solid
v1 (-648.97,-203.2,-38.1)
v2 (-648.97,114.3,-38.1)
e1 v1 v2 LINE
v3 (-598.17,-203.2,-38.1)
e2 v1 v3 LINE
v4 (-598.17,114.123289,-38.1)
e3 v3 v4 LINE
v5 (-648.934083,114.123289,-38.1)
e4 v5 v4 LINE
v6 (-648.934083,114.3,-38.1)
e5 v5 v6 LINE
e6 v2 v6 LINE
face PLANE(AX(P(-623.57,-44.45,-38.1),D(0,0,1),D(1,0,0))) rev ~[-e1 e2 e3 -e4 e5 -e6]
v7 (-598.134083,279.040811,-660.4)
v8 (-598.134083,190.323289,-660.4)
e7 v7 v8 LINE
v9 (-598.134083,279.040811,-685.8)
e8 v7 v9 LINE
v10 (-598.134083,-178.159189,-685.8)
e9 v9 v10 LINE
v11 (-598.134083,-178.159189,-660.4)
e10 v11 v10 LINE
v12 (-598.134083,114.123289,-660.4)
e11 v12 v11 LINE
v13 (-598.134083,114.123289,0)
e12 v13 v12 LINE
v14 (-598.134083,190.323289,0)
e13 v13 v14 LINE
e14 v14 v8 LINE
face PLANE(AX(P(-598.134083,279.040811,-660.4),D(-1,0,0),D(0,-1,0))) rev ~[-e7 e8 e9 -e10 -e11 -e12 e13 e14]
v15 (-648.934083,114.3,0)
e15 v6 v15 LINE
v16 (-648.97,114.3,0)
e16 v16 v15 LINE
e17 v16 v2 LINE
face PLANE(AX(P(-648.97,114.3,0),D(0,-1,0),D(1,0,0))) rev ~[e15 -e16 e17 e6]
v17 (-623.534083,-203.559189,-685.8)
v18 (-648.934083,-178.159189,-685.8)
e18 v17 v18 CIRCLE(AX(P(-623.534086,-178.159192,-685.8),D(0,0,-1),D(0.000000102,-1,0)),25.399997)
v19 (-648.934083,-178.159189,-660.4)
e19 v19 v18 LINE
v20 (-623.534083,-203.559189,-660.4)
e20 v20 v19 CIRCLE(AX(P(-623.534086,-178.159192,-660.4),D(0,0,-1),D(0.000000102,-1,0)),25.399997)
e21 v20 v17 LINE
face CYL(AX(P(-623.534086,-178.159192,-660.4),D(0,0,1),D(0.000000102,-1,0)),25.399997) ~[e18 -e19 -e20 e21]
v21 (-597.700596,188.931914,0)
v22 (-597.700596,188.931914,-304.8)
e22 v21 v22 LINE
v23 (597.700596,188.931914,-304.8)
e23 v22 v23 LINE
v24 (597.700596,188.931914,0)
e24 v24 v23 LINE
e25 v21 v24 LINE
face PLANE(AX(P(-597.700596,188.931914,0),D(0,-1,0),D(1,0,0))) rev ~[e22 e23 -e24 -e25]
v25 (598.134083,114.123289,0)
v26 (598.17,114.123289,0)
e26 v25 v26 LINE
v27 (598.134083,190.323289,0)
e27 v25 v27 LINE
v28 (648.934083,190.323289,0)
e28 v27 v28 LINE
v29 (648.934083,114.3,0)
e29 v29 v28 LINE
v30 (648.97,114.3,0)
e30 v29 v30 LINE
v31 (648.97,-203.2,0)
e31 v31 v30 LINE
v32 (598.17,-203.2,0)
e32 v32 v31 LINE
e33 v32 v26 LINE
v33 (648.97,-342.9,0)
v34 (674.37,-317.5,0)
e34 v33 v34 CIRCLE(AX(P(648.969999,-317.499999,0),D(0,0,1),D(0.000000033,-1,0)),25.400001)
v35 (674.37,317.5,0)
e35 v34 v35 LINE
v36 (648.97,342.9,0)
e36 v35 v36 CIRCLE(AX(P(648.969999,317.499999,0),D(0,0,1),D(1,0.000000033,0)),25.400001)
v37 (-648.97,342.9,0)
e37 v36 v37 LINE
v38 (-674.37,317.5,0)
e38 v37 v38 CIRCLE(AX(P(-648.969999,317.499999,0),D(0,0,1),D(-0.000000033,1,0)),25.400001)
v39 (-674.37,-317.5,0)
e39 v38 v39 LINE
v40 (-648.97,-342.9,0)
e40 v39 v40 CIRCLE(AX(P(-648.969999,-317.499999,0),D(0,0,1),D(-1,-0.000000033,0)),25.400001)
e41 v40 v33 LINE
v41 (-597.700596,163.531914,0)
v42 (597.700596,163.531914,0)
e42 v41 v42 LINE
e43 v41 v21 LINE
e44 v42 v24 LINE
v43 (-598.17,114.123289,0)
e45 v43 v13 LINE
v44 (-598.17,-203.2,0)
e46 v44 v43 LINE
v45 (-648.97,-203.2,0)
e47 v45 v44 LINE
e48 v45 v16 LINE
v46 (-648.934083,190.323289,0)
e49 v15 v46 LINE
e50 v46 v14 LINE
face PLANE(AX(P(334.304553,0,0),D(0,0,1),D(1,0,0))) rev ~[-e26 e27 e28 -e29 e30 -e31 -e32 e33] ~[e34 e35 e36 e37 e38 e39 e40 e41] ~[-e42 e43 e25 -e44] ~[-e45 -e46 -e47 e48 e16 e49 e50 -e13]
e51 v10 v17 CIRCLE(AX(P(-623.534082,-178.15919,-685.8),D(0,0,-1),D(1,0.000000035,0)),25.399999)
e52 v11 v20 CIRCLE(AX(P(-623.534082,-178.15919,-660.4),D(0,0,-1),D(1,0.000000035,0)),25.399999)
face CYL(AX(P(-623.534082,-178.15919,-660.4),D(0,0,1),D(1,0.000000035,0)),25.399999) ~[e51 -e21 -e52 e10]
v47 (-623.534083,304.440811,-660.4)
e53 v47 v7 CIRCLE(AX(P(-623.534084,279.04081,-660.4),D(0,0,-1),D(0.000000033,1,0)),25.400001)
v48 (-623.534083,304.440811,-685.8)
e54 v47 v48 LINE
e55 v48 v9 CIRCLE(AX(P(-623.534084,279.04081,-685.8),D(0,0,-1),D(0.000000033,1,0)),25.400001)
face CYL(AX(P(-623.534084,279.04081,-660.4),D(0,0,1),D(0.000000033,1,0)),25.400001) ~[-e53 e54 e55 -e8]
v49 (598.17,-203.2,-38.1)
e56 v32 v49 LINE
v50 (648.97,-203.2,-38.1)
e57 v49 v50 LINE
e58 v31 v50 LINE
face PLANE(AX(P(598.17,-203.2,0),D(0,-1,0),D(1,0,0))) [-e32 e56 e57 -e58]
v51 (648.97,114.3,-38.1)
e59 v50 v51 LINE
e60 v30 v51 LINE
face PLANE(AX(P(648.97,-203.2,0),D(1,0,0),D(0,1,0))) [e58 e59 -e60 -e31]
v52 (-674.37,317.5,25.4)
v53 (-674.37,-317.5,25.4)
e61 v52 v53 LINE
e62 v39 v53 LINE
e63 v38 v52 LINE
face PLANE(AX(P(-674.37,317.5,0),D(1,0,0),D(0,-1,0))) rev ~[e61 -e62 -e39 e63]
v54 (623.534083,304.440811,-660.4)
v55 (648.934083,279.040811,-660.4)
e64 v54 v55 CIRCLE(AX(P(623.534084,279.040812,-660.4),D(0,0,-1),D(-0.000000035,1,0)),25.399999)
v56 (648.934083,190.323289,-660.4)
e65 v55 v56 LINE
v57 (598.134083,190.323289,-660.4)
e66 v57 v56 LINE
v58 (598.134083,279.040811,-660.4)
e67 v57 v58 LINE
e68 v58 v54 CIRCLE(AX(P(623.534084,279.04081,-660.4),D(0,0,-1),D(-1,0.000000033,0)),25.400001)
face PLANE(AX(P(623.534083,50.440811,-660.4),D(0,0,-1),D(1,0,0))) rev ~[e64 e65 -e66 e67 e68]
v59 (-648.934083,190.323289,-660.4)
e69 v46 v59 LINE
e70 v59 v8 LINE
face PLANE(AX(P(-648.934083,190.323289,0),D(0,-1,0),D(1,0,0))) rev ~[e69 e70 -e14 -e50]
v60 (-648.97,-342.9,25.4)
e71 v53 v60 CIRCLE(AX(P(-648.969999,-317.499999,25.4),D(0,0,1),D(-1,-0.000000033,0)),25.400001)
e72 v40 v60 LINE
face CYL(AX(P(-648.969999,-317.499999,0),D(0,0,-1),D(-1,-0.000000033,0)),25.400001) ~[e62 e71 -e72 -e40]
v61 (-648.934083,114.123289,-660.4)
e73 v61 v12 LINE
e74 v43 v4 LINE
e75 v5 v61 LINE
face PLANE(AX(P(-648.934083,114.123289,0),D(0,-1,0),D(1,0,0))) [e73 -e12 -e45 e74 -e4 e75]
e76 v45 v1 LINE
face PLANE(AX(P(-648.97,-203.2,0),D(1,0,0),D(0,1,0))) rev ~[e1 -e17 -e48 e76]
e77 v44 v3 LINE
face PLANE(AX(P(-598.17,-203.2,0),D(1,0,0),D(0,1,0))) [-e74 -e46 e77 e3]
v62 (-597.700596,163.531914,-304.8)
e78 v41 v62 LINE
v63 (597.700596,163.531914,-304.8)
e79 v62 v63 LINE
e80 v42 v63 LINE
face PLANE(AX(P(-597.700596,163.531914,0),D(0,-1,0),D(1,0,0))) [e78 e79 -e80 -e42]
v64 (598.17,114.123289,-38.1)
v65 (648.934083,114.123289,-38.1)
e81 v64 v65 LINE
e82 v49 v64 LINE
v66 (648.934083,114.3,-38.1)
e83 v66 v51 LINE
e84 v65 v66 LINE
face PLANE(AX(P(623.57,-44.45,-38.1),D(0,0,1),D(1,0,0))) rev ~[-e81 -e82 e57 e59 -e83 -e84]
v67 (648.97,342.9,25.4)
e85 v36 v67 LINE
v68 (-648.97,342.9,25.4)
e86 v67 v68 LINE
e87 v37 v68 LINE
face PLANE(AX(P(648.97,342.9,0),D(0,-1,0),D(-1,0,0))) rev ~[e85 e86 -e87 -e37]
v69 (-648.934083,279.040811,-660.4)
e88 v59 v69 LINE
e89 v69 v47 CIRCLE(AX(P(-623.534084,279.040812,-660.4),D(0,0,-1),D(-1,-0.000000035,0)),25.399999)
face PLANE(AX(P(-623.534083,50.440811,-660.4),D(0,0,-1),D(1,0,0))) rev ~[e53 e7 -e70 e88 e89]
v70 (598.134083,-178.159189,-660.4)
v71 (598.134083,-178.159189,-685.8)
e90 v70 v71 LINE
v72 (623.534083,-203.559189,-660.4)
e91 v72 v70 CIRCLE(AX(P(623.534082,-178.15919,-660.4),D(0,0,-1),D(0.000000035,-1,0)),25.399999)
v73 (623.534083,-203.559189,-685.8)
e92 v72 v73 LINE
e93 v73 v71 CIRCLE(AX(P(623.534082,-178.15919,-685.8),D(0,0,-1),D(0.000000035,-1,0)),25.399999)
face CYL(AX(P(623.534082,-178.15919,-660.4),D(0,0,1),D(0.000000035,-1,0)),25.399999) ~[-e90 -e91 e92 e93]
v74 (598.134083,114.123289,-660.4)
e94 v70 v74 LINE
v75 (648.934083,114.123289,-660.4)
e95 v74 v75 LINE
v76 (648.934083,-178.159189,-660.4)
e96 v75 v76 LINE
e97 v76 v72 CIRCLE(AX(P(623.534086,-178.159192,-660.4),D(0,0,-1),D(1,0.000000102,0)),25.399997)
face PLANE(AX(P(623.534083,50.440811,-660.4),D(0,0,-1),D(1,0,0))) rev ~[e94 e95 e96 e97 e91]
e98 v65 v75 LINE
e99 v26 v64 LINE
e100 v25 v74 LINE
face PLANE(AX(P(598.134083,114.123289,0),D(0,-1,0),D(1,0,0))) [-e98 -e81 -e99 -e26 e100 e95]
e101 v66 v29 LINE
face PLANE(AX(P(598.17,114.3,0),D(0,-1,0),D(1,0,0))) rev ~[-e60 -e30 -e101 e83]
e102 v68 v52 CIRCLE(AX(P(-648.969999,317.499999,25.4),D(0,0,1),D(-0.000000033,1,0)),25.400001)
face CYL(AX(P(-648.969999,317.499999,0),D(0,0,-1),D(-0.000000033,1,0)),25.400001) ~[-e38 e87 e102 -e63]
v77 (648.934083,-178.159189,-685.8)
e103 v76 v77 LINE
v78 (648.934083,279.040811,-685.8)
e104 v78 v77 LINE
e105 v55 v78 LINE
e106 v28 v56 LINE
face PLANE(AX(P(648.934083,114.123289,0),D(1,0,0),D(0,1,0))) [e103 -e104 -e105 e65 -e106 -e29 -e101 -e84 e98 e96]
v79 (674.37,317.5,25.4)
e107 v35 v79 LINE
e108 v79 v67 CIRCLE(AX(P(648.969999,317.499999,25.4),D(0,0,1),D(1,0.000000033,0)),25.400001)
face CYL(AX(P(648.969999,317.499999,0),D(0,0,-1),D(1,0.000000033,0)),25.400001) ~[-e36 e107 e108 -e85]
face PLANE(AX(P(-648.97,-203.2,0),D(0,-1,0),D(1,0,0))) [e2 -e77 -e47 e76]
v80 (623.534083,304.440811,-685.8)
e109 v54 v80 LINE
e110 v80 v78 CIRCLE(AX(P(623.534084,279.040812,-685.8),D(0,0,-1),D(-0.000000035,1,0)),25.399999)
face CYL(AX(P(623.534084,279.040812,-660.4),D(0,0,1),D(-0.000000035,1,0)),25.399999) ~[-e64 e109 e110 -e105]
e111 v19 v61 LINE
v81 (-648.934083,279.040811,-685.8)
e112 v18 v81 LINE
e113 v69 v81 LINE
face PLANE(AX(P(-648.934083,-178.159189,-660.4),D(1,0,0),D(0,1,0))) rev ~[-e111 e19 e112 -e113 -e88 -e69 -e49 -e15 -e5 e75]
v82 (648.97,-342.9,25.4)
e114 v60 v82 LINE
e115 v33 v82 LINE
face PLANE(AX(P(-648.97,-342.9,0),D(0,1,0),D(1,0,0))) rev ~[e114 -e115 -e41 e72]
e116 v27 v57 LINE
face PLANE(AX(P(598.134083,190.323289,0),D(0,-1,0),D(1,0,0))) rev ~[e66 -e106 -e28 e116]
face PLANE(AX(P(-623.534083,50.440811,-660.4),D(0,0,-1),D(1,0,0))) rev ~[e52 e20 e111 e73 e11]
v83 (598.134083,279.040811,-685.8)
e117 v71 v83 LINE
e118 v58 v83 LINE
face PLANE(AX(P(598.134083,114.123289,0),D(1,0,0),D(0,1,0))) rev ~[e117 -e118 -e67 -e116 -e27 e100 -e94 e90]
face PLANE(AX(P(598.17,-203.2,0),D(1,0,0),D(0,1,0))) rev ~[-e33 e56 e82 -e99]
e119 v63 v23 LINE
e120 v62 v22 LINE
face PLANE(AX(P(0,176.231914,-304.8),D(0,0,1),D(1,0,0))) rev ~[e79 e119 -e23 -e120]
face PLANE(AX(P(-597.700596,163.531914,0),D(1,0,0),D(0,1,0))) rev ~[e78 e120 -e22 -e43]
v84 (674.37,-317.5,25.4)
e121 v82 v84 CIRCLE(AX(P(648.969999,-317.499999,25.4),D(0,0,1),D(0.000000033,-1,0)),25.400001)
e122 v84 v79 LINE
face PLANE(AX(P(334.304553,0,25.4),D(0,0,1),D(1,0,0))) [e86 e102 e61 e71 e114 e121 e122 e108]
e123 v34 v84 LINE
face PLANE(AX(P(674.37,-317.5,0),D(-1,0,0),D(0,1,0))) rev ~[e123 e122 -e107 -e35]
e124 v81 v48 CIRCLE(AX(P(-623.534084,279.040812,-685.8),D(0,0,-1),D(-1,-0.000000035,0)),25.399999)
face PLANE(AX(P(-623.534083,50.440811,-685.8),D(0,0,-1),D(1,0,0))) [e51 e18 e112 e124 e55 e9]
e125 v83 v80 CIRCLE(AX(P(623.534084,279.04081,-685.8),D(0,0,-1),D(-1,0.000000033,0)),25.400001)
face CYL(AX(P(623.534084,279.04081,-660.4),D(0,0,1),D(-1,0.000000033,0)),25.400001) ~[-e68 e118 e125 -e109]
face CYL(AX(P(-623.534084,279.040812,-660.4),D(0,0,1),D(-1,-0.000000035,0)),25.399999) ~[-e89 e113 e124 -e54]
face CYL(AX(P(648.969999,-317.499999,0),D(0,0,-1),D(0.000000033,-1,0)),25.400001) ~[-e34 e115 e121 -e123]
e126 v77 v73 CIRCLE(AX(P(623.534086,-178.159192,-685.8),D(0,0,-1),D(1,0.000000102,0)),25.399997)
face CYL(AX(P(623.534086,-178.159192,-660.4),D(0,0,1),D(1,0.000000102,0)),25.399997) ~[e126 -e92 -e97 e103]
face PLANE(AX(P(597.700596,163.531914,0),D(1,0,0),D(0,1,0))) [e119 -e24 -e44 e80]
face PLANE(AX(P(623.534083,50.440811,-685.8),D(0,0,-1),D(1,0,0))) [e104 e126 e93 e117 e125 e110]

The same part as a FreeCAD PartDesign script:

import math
import FreeCAD as App
import Part
import Sketcher

V = App.Vector
Q = App.Units.Quantity

doc = App.newDocument("Part")
body = doc.addObject("PartDesign::Body", "Body")

# Sketch on XY plane
sketch1 = body.newObject("Sketcher::SketchObject", "Sketch")
sketch1.AttachmentSupport = (doc.getObject("XY_Plane"), [""])
sketch1.MapMode = "FlatFace"
sketch1.addGeometry(Part.ArcOfCircle(Part.Circle(V(649, -317, 0), V(0, 0, 1), 25), math.radians(-90), math.radians(0)), False)
sketch1.addGeometry(Part.LineSegment(V(674, -318, 0), V(674, 318, 0)), False)
sketch1.addGeometry(Part.ArcOfCircle(Part.Circle(V(649, 317, 0), V(0, 0, 1), 25), math.radians(0), math.radians(90)), False)
sketch1.addGeometry(Part.LineSegment(V(649, 343, 0), V(-649, 343, 0)), False)
sketch1.addGeometry(Part.ArcOfCircle(Part.Circle(V(-649, 317, 0), V(0, 0, 1), 25), math.radians(90), math.radians(180)), False)
sketch1.addGeometry(Part.LineSegment(V(-674, 318, 0), V(-674, -318, 0)), False)
sketch1.addGeometry(Part.ArcOfCircle(Part.Circle(V(-649, -317, 0), V(0, 0, 1), 25), math.radians(-180), math.radians(-90)), False)
sketch1.addGeometry(Part.LineSegment(V(-649, -343, 0), V(649, -343, 0)), False)
sketch1.addConstraint(Sketcher.Constraint("Tangent", 0, 2, 1, 1))
sketch1.addConstraint(Sketcher.Constraint("Tangent", 1, 2, 2, 1))
sketch1.addConstraint(Sketcher.Constraint("Tangent", 2, 2, 3, 1))
sketch1.addConstraint(Sketcher.Constraint("Tangent", 3, 2, 4, 1))
sketch1.addConstraint(Sketcher.Constraint("Tangent", 4, 2, 5, 1))
sketch1.addConstraint(Sketcher.Constraint("Tangent", 5, 2, 6, 1))
sketch1.addConstraint(Sketcher.Constraint("Tangent", 6, 2, 7, 1))
sketch1.addConstraint(Sketcher.Constraint("Tangent", 7, 2, 0, 1))
sketch1.addConstraint(Sketcher.Constraint("Vertical", 1))
sketch1.addConstraint(Sketcher.Constraint("Horizontal", 3))
sketch1.addConstraint(Sketcher.Constraint("Vertical", 5))
sketch1.addConstraint(Sketcher.Constraint("Horizontal", 7))
sketch1.addConstraint(Sketcher.Constraint("Equal", 0, 2))
sketch1.addConstraint(Sketcher.Constraint("Equal", 2, 4))
sketch1.addConstraint(Sketcher.Constraint("Equal", 4, 6))
sketch1.addConstraint(Sketcher.Constraint("Symmetric", 0, 3, 4, 3, -1, 1))
sketch1.addConstraint(Sketcher.Constraint("Radius", 0, Q("1 in")))
sketch1.addConstraint(Sketcher.Constraint("DistanceY", 1, 1, 1, 2, Q("25 in")))
sketch1.addConstraint(Sketcher.Constraint("DistanceX", 3, 2, 3, 1, Q("51.1 in")))
pad1 = body.newObject("PartDesign::Pad", "Pad")
pad1.Profile = sketch1
pad1.Length = Q("1 in")

# Sketch on XY plane
sketch2 = body.newObject("Sketcher::SketchObject", "Sketch001")
sketch2.AttachmentSupport = (doc.getObject("XY_Plane"), [""])
sketch2.MapMode = "FlatFace"
sketch2.addGeometry(Part.LineSegment(V(-649, 114, 0), V(-649, -203, 0)), False)
sketch2.addGeometry(Part.LineSegment(V(-649, -203, 0), V(-598, -203, 0)), False)
sketch2.addGeometry(Part.LineSegment(V(-598, -203, 0), V(-598, 114, 0)), False)
sketch2.addGeometry(Part.LineSegment(V(-598, 114, 0), V(-649, 114, 0)), False)
sketch2.addGeometry(Part.LineSegment(V(598, 114, 0), V(598, -203, 0)), False)
sketch2.addGeometry(Part.LineSegment(V(598, -203, 0), V(649, -203, 0)), False)
sketch2.addGeometry(Part.LineSegment(V(649, -203, 0), V(649, 114, 0)), False)
sketch2.addGeometry(Part.LineSegment(V(649, 114, 0), V(598, 114, 0)), False)
sketch2.addConstraint(Sketcher.Constraint("Coincident", 0, 2, 1, 1))
sketch2.addConstraint(Sketcher.Constraint("Coincident", 1, 2, 2, 1))
sketch2.addConstraint(Sketcher.Constraint("Coincident", 2, 2, 3, 1))
sketch2.addConstraint(Sketcher.Constraint("Coincident", 3, 2, 0, 1))
sketch2.addConstraint(Sketcher.Constraint("Coincident", 4, 2, 5, 1))
sketch2.addConstraint(Sketcher.Constraint("Coincident", 5, 2, 6, 1))
sketch2.addConstraint(Sketcher.Constraint("Coincident", 6, 2, 7, 1))
sketch2.addConstraint(Sketcher.Constraint("Coincident", 7, 2, 4, 1))
sketch2.addConstraint(Sketcher.Constraint("Vertical", 0))
sketch2.addConstraint(Sketcher.Constraint("Horizontal", 1))
sketch2.addConstraint(Sketcher.Constraint("Vertical", 2))
sketch2.addConstraint(Sketcher.Constraint("Horizontal", 3))
sketch2.addConstraint(Sketcher.Constraint("Vertical", 4))
sketch2.addConstraint(Sketcher.Constraint("Horizontal", 5))
sketch2.addConstraint(Sketcher.Constraint("Vertical", 6))
sketch2.addConstraint(Sketcher.Constraint("Horizontal", 7))
sketch2.addConstraint(Sketcher.Constraint("Symmetric", 1, 2, 4, 2, -2))
sketch2.addConstraint(Sketcher.Constraint("Symmetric", 3, 2, 6, 2, -2))
sketch2.addConstraint(Sketcher.Constraint("DistanceX", 1, 1, 1, 2, Q("2 in")))
sketch2.addConstraint(Sketcher.Constraint("DistanceY", 0, 2, 0, 1, Q("12.5 in")))
sketch2.addConstraint(Sketcher.Constraint("DistanceY", 0, 2, -1, 1, Q("8 in")))
sketch2.addConstraint(Sketcher.Constraint("DistanceX", 1, 2, 4, 2, Q("47.1 in")))
pad2 = body.newObject("PartDesign::Pad", "Pad001")
pad2.Profile = sketch2
pad2.Length = Q("1.5 in")
pad2.Reversed = True

# Sketch on XY plane
sketch3 = body.newObject("Sketcher::SketchObject", "Sketch002")
sketch3.AttachmentSupport = (doc.getObject("XY_Plane"), [""])
sketch3.MapMode = "FlatFace"
sketch3.addGeometry(Part.LineSegment(V(-649, 190, 0), V(-649, 114, 0)), False)
sketch3.addGeometry(Part.LineSegment(V(-649, 114, 0), V(-598, 114, 0)), False)
sketch3.addGeometry(Part.LineSegment(V(-598, 114, 0), V(-598, 190, 0)), False)
sketch3.addGeometry(Part.LineSegment(V(-598, 190, 0), V(-649, 190, 0)), False)
sketch3.addGeometry(Part.LineSegment(V(598, 190, 0), V(598, 114, 0)), False)
sketch3.addGeometry(Part.LineSegment(V(598, 114, 0), V(649, 114, 0)), False)
sketch3.addGeometry(Part.LineSegment(V(649, 114, 0), V(649, 190, 0)), False)
sketch3.addGeometry(Part.LineSegment(V(649, 190, 0), V(598, 190, 0)), False)
sketch3.addConstraint(Sketcher.Constraint("Coincident", 0, 2, 1, 1))
sketch3.addConstraint(Sketcher.Constraint("Coincident", 1, 2, 2, 1))
sketch3.addConstraint(Sketcher.Constraint("Coincident", 2, 2, 3, 1))
sketch3.addConstraint(Sketcher.Constraint("Coincident", 3, 2, 0, 1))
sketch3.addConstraint(Sketcher.Constraint("Coincident", 4, 2, 5, 1))
sketch3.addConstraint(Sketcher.Constraint("Coincident", 5, 2, 6, 1))
sketch3.addConstraint(Sketcher.Constraint("Coincident", 6, 2, 7, 1))
sketch3.addConstraint(Sketcher.Constraint("Coincident", 7, 2, 4, 1))
sketch3.addConstraint(Sketcher.Constraint("Vertical", 0))
sketch3.addConstraint(Sketcher.Constraint("Horizontal", 1))
sketch3.addConstraint(Sketcher.Constraint("Vertical", 2))
sketch3.addConstraint(Sketcher.Constraint("Horizontal", 3))
sketch3.addConstraint(Sketcher.Constraint("Vertical", 4))
sketch3.addConstraint(Sketcher.Constraint("Horizontal", 5))
sketch3.addConstraint(Sketcher.Constraint("Vertical", 6))
sketch3.addConstraint(Sketcher.Constraint("Horizontal", 7))
sketch3.addConstraint(Sketcher.Constraint("Symmetric", 1, 2, 4, 2, -2))
sketch3.addConstraint(Sketcher.Constraint("Symmetric", 3, 2, 6, 2, -2))
sketch3.addConstraint(Sketcher.Constraint("DistanceX", 1, 1, 1, 2, Q("2 in")))
sketch3.addConstraint(Sketcher.Constraint("DistanceY", 0, 2, 0, 1, Q("3 in")))
sketch3.addConstraint(Sketcher.Constraint("DistanceY", -1, 1, 0, 2, 114.123289))
sketch3.addConstraint(Sketcher.Constraint("DistanceX", 0, 2, -1, 1, 648.934083))
pad3 = body.newObject("PartDesign::Pad", "Pad002")
pad3.Profile = sketch3
pad3.Length = Q("26 in")
pad3.Reversed = True

# Sketch on XY plane
sketch4 = body.newObject("Sketcher::SketchObject", "Sketch003")
sketch4.AttachmentSupport = (doc.getObject("XY_Plane"), [""])
sketch4.MapMode = "FlatFace"
sketch4.addGeometry(Part.LineSegment(V(-598, 189, 0), V(-598, 164, 0)), False)
sketch4.addGeometry(Part.LineSegment(V(-598, 164, 0), V(598, 164, 0)), False)
sketch4.addGeometry(Part.LineSegment(V(598, 164, 0), V(598, 189, 0)), False)
sketch4.addGeometry(Part.LineSegment(V(598, 189, 0), V(-598, 189, 0)), False)
sketch4.addConstraint(Sketcher.Constraint("Coincident", 0, 2, 1, 1))
sketch4.addConstraint(Sketcher.Constraint("Coincident", 1, 2, 2, 1))
sketch4.addConstraint(Sketcher.Constraint("Coincident", 2, 2, 3, 1))
sketch4.addConstraint(Sketcher.Constraint("Coincident", 3, 2, 0, 1))
sketch4.addConstraint(Sketcher.Constraint("Vertical", 0))
sketch4.addConstraint(Sketcher.Constraint("Horizontal", 1))
sketch4.addConstraint(Sketcher.Constraint("Vertical", 2))
sketch4.addConstraint(Sketcher.Constraint("Horizontal", 3))
sketch4.addConstraint(Sketcher.Constraint("DistanceY", 0, 2, 0, 1, Q("1 in")))
sketch4.addConstraint(Sketcher.Constraint("DistanceX", 1, 1, 1, 2, 1195.401192))
sketch4.addConstraint(Sketcher.Constraint("DistanceX", 0, 2, -1, 1, 597.700596))
sketch4.addConstraint(Sketcher.Constraint("DistanceY", -1, 1, 0, 2, 163.531914))
pad4 = body.newObject("PartDesign::Pad", "Pad003")
pad4.Profile = sketch4
pad4.Length = Q("12 in")
pad4.Reversed = True

# Sketch on XY plane
sketch5 = body.newObject("Sketcher::SketchObject", "Sketch004")
sketch5.AttachmentSupport = (doc.getObject("XY_Plane"), [""])
sketch5.MapMode = "FlatFace"
sketch5.AttachmentOffset = App.Placement(V(0, 0, -26 * 25.4), App.Rotation())
sketch5.addGeometry(Part.ArcOfCircle(Part.Circle(V(-624, -178, 0), V(0, 0, 1), 25), math.radians(180), math.radians(270)), False)
sketch5.addGeometry(Part.LineSegment(V(-649, -178, 0), V(-649, 279, 0)), False)
sketch5.addGeometry(Part.ArcOfCircle(Part.Circle(V(-624, 279, 0), V(0, 0, 1), 25), math.radians(90), math.radians(180)), False)
sketch5.addGeometry(Part.ArcOfCircle(Part.Circle(V(-624, 279, 0), V(0, 0, 1), 25), math.radians(0), math.radians(90)), False)
sketch5.addGeometry(Part.LineSegment(V(-598, 279, 0), V(-598, -178, 0)), False)
sketch5.addGeometry(Part.ArcOfCircle(Part.Circle(V(-624, -178, 0), V(0, 0, 1), 25), math.radians(-90), math.radians(0)), False)
sketch5.addGeometry(Part.ArcOfCircle(Part.Circle(V(624, -178, 0), V(0, 0, 1), 25), math.radians(180), math.radians(270)), False)
sketch5.addGeometry(Part.LineSegment(V(598, -178, 0), V(598, 279, 0)), False)
sketch5.addGeometry(Part.ArcOfCircle(Part.Circle(V(624, 279, 0), V(0, 0, 1), 25), math.radians(90), math.radians(180)), False)
sketch5.addGeometry(Part.ArcOfCircle(Part.Circle(V(624, 279, 0), V(0, 0, 1), 25), math.radians(0), math.radians(90)), False)
sketch5.addGeometry(Part.LineSegment(V(649, 279, 0), V(649, -178, 0)), False)
sketch5.addGeometry(Part.ArcOfCircle(Part.Circle(V(624, -178, 0), V(0, 0, 1), 25), math.radians(-90), math.radians(0)), False)
sketch5.addConstraint(Sketcher.Constraint("Tangent", 0, 1, 1, 1))
sketch5.addConstraint(Sketcher.Constraint("Tangent", 1, 2, 2, 2))
sketch5.addConstraint(Sketcher.Constraint("Tangent", 2, 1, 3, 2))
sketch5.addConstraint(Sketcher.Constraint("Tangent", 3, 1, 4, 1))
sketch5.addConstraint(Sketcher.Constraint("Tangent", 4, 2, 5, 2))
sketch5.addConstraint(Sketcher.Constraint("Tangent", 5, 1, 0, 2))
sketch5.addConstraint(Sketcher.Constraint("Tangent", 6, 1, 7, 1))
sketch5.addConstraint(Sketcher.Constraint("Tangent", 7, 2, 8, 2))
sketch5.addConstraint(Sketcher.Constraint("Tangent", 8, 1, 9, 2))
sketch5.addConstraint(Sketcher.Constraint("Tangent", 9, 1, 10, 1))
sketch5.addConstraint(Sketcher.Constraint("Tangent", 10, 2, 11, 2))
sketch5.addConstraint(Sketcher.Constraint("Tangent", 11, 1, 6, 2))
sketch5.addConstraint(Sketcher.Constraint("Vertical", 1))
sketch5.addConstraint(Sketcher.Constraint("Vertical", 4))
sketch5.addConstraint(Sketcher.Constraint("Vertical", 7))
sketch5.addConstraint(Sketcher.Constraint("Vertical", 10))
sketch5.addConstraint(Sketcher.Constraint("Equal", 0, 2))
sketch5.addConstraint(Sketcher.Constraint("Equal", 2, 3))
sketch5.addConstraint(Sketcher.Constraint("Equal", 5, 6))
sketch5.addConstraint(Sketcher.Constraint("Equal", 6, 8))
sketch5.addConstraint(Sketcher.Constraint("Equal", 8, 9))
sketch5.addConstraint(Sketcher.Constraint("Symmetric", 0, 3, 6, 3, -2))
sketch5.addConstraint(Sketcher.Constraint("Symmetric", 2, 1, 8, 1, -2))
sketch5.addConstraint(Sketcher.Constraint("Vertical", 5, 3, 2, 1))
sketch5.addConstraint(Sketcher.Constraint("Vertical", 2, 1, 5, 1))
sketch5.addConstraint(Sketcher.Constraint("Vertical", 8, 1, 11, 1))
sketch5.addConstraint(Sketcher.Constraint("Radius", 0, Q("0.9999999 in")))
sketch5.addConstraint(Sketcher.Constraint("DistanceY", 1, 1, 1, 2, Q("18 in")))
sketch5.addConstraint(Sketcher.Constraint("DistanceY", 0, 3, -1, 1, 178.159192))
sketch5.addConstraint(Sketcher.Constraint("DistanceX", 0, 3, 8, 3, 1247.068169))
pad5 = body.newObject("PartDesign::Pad", "Pad004")
pad5.Profile = sketch5
pad5.Length = Q("1 in")
pad5.Reversed = True

doc.recompute()
